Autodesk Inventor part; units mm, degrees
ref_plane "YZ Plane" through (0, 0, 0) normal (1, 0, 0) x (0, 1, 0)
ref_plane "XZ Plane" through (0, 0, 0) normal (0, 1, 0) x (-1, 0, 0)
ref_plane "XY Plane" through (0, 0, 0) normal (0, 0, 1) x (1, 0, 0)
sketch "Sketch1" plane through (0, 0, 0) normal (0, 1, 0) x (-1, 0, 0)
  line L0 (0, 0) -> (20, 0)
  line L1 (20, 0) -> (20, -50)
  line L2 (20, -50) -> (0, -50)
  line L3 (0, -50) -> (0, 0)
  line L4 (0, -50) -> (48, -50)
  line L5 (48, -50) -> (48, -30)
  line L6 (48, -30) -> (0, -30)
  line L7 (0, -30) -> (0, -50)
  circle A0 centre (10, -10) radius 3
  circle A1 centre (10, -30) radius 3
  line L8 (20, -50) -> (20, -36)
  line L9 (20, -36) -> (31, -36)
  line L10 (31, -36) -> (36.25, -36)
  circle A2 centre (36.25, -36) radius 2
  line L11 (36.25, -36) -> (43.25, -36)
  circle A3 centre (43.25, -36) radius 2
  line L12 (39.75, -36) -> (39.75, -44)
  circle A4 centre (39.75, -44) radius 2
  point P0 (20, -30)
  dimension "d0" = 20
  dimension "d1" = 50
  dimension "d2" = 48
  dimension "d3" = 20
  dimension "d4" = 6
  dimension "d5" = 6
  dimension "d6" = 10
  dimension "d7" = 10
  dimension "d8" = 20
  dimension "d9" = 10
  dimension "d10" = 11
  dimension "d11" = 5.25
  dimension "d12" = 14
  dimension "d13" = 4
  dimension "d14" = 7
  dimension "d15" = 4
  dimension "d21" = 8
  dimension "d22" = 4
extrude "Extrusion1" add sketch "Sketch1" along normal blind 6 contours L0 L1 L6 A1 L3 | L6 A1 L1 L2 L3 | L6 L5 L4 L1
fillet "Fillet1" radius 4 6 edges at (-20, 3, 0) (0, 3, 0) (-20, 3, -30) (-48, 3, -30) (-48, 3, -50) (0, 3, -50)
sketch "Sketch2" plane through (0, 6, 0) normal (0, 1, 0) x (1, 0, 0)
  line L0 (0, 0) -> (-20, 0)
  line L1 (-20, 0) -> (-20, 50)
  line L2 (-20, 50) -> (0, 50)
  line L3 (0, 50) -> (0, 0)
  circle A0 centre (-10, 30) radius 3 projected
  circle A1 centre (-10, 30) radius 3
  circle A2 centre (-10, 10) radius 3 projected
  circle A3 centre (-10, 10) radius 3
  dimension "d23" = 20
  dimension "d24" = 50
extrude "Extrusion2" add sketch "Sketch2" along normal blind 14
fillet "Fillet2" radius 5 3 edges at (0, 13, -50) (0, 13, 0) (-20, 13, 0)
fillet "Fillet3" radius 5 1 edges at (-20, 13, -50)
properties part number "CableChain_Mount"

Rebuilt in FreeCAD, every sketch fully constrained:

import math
import FreeCAD as App
import Part
import Sketcher

V = App.Vector
Q = App.Units.Quantity


def edges_at(feature, points):
    """Names of the edges that pass closest to the given points."""
    edges = feature.Shape.Edges
    near = lambda p: min(range(len(edges)), key=lambda i: edges[i].distToShape(Part.Vertex(*p))[0])
    return sorted({f"Edge{near(p) + 1}" for p in points})


def add_polygon(sketch, points):
    """Adds a closed chain of lines whose ends are joined by coincident constraints."""
    first, n = sketch.GeometryCount, len(points)
    for a, b in zip(points, points[1:] + points[:1]):
        sketch.addGeometry(Part.LineSegment(App.Vector(*a, 0), App.Vector(*b, 0)), False)
    for i in range(n):
        sketch.addConstraint(Sketcher.Constraint("Coincident", first + i, 2, first + (i + 1) % n, 1))

doc = App.newDocument("Part")
body = doc.addObject("PartDesign::Body", "Body")

# Sketch on XZ plane
sketch1 = body.newObject("Sketcher::SketchObject", "Sketch")
sketch1.AttachmentSupport = (doc.getObject("XZ_Plane"), [""])
sketch1.MapMode = "FlatFace"
add_polygon(sketch1, [(-20, 0), (0, 0), (0, -50), (-48, -50), (-48, -30), (-20, -30)])  # lines 0-5
sketch1.addGeometry(Part.Circle(V(-10, -30, 0), V(0, 0, 1), 3), False)  # 6
sketch1.addGeometry(Part.Circle(V(-10, -10, 0), V(0, 0, 1), 3), False)  # 7
sketch1.addGeometry(Part.Circle(V(-39.8, -44, 0), V(0, 0, 1), 2), False)  # 8
sketch1.addGeometry(Part.ArcOfCircle(Part.Circle(V(-36.2, -36, 0), V(0, 0, 1), 2), math.radians(180), math.radians(360)), False)  # 9
sketch1.addGeometry(Part.ArcOfCircle(Part.Circle(V(-36.2, -36, 0), V(0, 0, 1), 2), math.radians(0), math.radians(180)), False)  # 10
sketch1.addGeometry(Part.Circle(V(-43.2, -36, 0), V(0, 0, 1), 2), False)  # 11
sketch1.addConstraint(Sketcher.Constraint("Tangent", 9, 1, 10, 2))
sketch1.addConstraint(Sketcher.Constraint("Coincident", 10, 1, 9, 2))
sketch1.addConstraint(Sketcher.Constraint("Horizontal", 0))
sketch1.addConstraint(Sketcher.Constraint("Vertical", 1))
sketch1.addConstraint(Sketcher.Constraint("Horizontal", 2))
sketch1.addConstraint(Sketcher.Constraint("Vertical", 3))
sketch1.addConstraint(Sketcher.Constraint("Horizontal", 4))
sketch1.addConstraint(Sketcher.Constraint("Vertical", 5))
sketch1.addConstraint(Sketcher.Constraint("Coincident", 0, 2, -1, 1))
sketch1.addConstraint(Sketcher.Constraint("Equal", 6, 7))
sketch1.addConstraint(Sketcher.Constraint("Equal", 8, 9))
sketch1.addConstraint(Sketcher.Constraint("Equal", 10, 11))
sketch1.addConstraint(Sketcher.Constraint("Horizontal", 10, 3, 11, 3))
sketch1.addConstraint(Sketcher.Constraint("Horizontal", 6, 3, 3, 2))
sketch1.addConstraint(Sketcher.Constraint("Horizontal", 11, 3, 9, 1))
sketch1.addConstraint(Sketcher.Constraint("Horizontal", 9, 1, 10, 1))
sketch1.addConstraint(Sketcher.Constraint("Vertical", 6, 3, 7, 3))
sketch1.addConstraint(Sketcher.Constraint("Equal", 0, 3))
sketch1.addConstraint(Sketcher.Constraint("Diameter", 6, Q("6 mm")))
sketch1.addConstraint(Sketcher.Constraint("Diameter", 8, Q("4 mm")))
sketch1.addConstraint(Sketcher.Constraint("DistanceX", 0, 1, 0, 2, Q("20 mm")))
sketch1.addConstraint(Sketcher.Constraint("DistanceX", 2, 2, 2, 1, Q("48 mm")))
sketch1.addConstraint(Sketcher.Constraint("DistanceY", 1, 2, 1, 1, Q("50 mm")))
sketch1.addConstraint(Sketcher.Constraint("DistanceX", 6, 3, -1, 1, Q("10 mm")))
sketch1.addConstraint(Sketcher.Constraint("DistanceY", 7, 3, -1, 1, Q("10 mm")))
sketch1.addConstraint(Sketcher.Constraint("DistanceY", 8, 3, 6, 3, Q("14 mm")))
sketch1.addConstraint(Sketcher.Constraint("DistanceY", 8, 3, 9, 3, Q("8 mm")))
sketch1.addConstraint(Sketcher.Constraint("DistanceX", 11, 3, 9, 3, Q("7 mm")))
sketch1.addConstraint(Sketcher.Constraint("DistanceX", 8, 3, 9, 3, Q("3.5 mm")))
sketch1.addConstraint(Sketcher.Constraint("DistanceX", 8, 3, -1, 1, Q("39.75 mm")))
pad1 = body.newObject("PartDesign::Pad", "Pad")
pad1.Profile = sketch1
pad1.Length = 6
pad1.Reversed = True
doc.recompute()

fillet = body.newObject("PartDesign::Fillet", "Fillet")
fillet.Base = (pad1, edges_at(pad1, [
    (-20, 3, 0),
    (0, 3, 0),
    (-20, 3, -30),
    (-48, 3, -30),
    (-48, 3, -50),
    (0, 3, -50),
]))
fillet.Radius = 4

# Sketch on XZ plane
sketch2 = body.newObject("Sketcher::SketchObject", "Sketch001")
sketch2.AttachmentSupport = (doc.getObject("XZ_Plane"), [""])
sketch2.MapMode = "FlatFace"
sketch2.AttachmentOffset = App.Placement(V(0, 0, -6), App.Rotation())
add_polygon(sketch2, [(-20, 0), (0, 0), (0, -50), (-20, -50)])  # lines 0-3
sketch2.addGeometry(Part.Circle(V(-10, -10, 0), V(0, 0, 1), 3), False)  # 4
sketch2.addGeometry(Part.Circle(V(-10, -30, 0), V(0, 0, 1), 3), False)  # 5
sketch2.addConstraint(Sketcher.Constraint("Horizontal", 0))
sketch2.addConstraint(Sketcher.Constraint("Vertical", 1))
sketch2.addConstraint(Sketcher.Constraint("Horizontal", 2))
sketch2.addConstraint(Sketcher.Constraint("Vertical", 3))
sketch2.addConstraint(Sketcher.Constraint("Coincident", 0, 2, -1, 1))
sketch2.addConstraint(Sketcher.Constraint("Equal", 4, 5))
sketch2.addConstraint(Sketcher.Constraint("Vertical", 4, 3, 5, 3))
sketch2.addConstraint(Sketcher.Constraint("DistanceX", 0, 1, 0, 2, Q("20 mm")))
sketch2.addConstraint(Sketcher.Constraint("DistanceY", 1, 2, 1, 1, Q("50 mm")))
sketch2.addConstraint(Sketcher.Constraint("Diameter", 4, Q("6 mm")))
sketch2.addConstraint(Sketcher.Constraint("DistanceY", 5, 3, 4, 3, Q("20 mm")))
sketch2.addConstraint(Sketcher.Constraint("DistanceY", 1, 2, 5, 3, Q("20 mm")))
sketch2.addConstraint(Sketcher.Constraint("DistanceX", 4, 3, -1, 1, Q("10 mm")))
pad2 = body.newObject("PartDesign::Pad", "Pad001")
pad2.Profile = sketch2
pad2.Length = 14
pad2.Reversed = True
doc.recompute()

fillet2 = body.newObject("PartDesign::Fillet", "Fillet001")
fillet2.Base = (pad2, edges_at(pad2, [(0, 13, -50), (0, 13, 0), (-20, 13, 0)]))
fillet2.Radius = 5
doc.recompute()

fillet3 = body.newObject("PartDesign::Fillet", "Fillet002")
fillet3.Base = (fillet2, edges_at(fillet2, [(-20, 13, -50)]))
fillet3.Radius = 5

doc.recompute()
